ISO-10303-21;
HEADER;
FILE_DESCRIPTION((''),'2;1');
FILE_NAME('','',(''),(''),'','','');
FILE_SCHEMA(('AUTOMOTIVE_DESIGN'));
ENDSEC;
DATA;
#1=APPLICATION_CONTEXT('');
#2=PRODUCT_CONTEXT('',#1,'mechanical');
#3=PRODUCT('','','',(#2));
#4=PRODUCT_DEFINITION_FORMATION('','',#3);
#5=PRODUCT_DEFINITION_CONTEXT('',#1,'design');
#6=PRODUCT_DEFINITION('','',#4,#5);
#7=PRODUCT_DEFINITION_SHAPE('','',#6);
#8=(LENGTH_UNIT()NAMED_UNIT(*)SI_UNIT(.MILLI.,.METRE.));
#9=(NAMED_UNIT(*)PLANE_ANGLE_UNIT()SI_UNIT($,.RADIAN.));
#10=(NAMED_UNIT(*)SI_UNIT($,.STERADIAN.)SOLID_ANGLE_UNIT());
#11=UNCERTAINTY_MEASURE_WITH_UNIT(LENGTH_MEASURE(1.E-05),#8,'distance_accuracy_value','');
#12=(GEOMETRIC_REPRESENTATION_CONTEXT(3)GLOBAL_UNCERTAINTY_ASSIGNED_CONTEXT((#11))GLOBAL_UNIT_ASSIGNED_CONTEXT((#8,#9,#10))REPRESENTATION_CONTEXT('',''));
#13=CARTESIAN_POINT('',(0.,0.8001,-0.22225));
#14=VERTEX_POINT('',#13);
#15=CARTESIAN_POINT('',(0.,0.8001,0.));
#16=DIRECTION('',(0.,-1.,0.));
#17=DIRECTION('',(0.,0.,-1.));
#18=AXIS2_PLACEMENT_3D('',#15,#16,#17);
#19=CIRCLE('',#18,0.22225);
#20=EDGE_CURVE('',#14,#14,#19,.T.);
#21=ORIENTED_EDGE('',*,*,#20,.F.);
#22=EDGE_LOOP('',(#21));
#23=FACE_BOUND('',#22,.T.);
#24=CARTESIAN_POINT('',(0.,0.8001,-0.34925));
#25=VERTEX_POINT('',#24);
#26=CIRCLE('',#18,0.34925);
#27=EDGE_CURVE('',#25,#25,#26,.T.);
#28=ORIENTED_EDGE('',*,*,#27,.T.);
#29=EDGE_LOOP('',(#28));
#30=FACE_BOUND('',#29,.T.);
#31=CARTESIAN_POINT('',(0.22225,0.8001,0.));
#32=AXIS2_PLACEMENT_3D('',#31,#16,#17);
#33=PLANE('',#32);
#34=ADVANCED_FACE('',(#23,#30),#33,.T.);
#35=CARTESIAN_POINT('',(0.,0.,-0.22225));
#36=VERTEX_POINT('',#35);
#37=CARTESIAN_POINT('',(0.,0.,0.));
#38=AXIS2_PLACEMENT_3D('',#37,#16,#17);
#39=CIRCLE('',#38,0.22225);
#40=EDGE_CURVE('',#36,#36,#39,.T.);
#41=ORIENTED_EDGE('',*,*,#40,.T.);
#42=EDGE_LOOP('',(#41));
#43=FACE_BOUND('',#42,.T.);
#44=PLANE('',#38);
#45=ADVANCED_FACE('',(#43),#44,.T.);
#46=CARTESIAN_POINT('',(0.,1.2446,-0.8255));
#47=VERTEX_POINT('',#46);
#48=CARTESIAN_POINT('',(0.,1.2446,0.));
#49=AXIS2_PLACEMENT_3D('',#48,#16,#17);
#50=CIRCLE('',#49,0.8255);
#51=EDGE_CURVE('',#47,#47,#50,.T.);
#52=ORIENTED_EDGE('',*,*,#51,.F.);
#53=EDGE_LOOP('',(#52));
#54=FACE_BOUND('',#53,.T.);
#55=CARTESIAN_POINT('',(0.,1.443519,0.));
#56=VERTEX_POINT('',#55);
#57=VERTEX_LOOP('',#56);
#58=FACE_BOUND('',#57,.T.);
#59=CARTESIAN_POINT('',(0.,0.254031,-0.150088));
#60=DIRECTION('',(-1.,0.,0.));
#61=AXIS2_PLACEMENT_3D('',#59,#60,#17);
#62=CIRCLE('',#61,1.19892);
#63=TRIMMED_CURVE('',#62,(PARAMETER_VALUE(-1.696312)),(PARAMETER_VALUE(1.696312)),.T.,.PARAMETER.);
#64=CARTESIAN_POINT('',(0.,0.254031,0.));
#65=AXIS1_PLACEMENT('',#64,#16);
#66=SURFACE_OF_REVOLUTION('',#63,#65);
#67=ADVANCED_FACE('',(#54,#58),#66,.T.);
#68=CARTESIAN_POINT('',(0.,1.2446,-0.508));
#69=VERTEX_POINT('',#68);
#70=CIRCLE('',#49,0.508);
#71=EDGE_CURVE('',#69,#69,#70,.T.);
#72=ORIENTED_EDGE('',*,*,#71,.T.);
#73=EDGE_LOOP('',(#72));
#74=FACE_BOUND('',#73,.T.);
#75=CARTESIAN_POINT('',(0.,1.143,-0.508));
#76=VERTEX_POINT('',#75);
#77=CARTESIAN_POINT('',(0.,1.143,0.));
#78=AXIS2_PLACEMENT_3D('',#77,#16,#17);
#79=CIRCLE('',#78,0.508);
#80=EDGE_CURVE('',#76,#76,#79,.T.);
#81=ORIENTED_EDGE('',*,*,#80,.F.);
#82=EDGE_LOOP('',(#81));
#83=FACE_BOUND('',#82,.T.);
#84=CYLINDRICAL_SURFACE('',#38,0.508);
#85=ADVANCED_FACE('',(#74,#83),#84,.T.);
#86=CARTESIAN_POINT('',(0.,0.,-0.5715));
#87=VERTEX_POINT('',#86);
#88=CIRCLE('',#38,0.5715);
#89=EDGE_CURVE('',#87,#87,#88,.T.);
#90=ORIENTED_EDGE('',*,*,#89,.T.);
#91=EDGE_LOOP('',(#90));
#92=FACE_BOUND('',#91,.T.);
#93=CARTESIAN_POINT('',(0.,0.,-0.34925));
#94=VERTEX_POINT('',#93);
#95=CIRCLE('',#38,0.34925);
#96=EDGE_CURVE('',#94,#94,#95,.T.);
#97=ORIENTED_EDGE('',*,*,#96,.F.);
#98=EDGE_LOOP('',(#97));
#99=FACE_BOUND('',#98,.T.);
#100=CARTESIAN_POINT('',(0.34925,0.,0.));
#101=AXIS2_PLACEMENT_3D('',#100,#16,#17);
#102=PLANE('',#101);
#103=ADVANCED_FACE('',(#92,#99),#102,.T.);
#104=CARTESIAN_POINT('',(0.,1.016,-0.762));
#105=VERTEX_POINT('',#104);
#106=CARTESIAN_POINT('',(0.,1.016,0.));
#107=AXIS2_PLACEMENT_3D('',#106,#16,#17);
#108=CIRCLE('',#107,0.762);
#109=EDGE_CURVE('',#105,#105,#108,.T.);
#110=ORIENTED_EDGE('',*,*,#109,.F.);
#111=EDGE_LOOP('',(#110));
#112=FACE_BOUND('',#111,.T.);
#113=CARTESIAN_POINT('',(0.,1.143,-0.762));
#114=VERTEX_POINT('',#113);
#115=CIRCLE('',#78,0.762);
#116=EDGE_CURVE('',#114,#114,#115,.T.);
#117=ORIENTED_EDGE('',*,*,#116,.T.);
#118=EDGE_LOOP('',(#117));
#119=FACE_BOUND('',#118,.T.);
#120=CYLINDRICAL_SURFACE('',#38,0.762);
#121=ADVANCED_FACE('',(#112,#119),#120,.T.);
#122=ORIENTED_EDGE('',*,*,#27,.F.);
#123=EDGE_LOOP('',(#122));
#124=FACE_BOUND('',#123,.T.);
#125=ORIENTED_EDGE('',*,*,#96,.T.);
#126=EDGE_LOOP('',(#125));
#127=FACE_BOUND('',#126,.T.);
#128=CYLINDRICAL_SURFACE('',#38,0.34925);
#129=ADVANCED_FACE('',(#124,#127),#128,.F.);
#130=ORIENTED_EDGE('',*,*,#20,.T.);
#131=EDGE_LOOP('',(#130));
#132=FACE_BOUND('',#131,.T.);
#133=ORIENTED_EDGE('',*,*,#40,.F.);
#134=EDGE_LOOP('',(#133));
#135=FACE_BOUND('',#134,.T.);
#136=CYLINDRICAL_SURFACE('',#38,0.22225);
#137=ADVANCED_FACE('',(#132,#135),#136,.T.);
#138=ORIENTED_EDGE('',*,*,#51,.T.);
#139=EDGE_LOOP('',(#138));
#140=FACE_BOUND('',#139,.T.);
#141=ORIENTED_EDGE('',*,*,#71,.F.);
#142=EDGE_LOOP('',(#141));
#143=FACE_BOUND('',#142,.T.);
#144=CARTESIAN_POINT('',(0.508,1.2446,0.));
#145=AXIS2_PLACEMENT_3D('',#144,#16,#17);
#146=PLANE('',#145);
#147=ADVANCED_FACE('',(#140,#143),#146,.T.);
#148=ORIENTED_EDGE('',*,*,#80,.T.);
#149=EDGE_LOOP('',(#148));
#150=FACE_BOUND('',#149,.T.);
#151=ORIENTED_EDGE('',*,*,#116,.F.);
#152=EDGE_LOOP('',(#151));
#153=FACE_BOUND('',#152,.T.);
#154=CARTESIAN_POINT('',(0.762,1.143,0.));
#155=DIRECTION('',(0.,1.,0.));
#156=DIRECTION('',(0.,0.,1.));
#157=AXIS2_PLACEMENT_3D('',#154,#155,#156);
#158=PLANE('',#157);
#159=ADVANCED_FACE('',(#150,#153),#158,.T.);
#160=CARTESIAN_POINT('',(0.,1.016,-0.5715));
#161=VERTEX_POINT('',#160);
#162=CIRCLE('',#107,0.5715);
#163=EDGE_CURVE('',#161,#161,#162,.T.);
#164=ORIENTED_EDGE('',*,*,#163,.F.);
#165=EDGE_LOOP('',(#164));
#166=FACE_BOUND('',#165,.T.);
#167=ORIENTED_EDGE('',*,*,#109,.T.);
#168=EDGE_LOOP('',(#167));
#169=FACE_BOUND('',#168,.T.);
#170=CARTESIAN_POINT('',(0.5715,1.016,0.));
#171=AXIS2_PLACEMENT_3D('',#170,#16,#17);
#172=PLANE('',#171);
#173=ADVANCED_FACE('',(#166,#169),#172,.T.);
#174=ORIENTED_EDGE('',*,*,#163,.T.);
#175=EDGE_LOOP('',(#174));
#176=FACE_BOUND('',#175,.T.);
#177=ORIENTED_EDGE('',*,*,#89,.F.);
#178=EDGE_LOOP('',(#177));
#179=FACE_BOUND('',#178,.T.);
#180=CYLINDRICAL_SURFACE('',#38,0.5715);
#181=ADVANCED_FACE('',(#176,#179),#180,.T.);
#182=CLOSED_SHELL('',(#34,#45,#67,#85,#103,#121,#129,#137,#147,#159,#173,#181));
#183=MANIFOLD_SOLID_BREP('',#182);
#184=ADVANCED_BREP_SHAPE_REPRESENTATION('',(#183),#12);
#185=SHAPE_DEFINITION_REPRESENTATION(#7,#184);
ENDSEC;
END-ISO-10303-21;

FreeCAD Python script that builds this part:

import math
import FreeCAD as App
import Part
import Sketcher
from FreeCAD import Vector
Q = App.Units.Quantity

doc = App.newDocument("Part")
body = doc.addObject("PartDesign::Body", "Body")

# Sketch on XY plane
sketch1 = doc.addObject("Sketcher::SketchObject", "Sketch")
body.addObject(sketch1)
sketch1.AttachmentSupport = (doc.XY_Plane, [""])
sketch1.MapMode = "FlatFace"
sketch1.addGeometry([
    Part.LineSegment(Vector(0, 0, 0), Vector(0.22, 0, 0)),  # 0
    Part.LineSegment(Vector(0.22, 0, 0), Vector(0.22, 0.8, 0)),  # 1
    Part.LineSegment(Vector(0.22, 0.8, 0), Vector(0.35, 0.8, 0)),  # 2
    Part.LineSegment(Vector(0.35, 0.8, 0), Vector(0.35, 0, 0)),  # 3
    Part.LineSegment(Vector(0.35, 0, 0), Vector(0.57, 0, 0)),  # 4
    Part.LineSegment(Vector(0.57, 0, 0), Vector(0.57, 1.02, 0)),  # 5
    Part.LineSegment(Vector(0.57, 1.02, 0), Vector(0.76, 1.02, 0)),  # 6
    Part.LineSegment(Vector(0.76, 1.02, 0), Vector(0.76, 1.14, 0)),  # 7
    Part.LineSegment(Vector(0.76, 1.14, 0), Vector(0.51, 1.14, 0)),  # 8
    Part.LineSegment(Vector(0.51, 1.14, 0), Vector(0.51, 1.24, 0)),  # 9
    Part.LineSegment(Vector(0.51, 1.24, 0), Vector(0.83, 1.24, 0)),  # 10
    Part.ArcOfCircle(Part.Circle(Vector(0.15, 0.25, 0), Vector(0, 0, 1), 1.2), math.radians(56), math.radians(97)),  # 11
    Part.LineSegment(Vector(0, 1.44, 0), Vector(0, 0, 0)),  # 12
], False)
sketch1.addConstraint([
    Sketcher.Constraint("Coincident", 0, 2, 1, 1),
    Sketcher.Constraint("Coincident", 1, 2, 2, 1),
    Sketcher.Constraint("Coincident", 2, 2, 3, 1),
    Sketcher.Constraint("Coincident", 3, 2, 4, 1),
    Sketcher.Constraint("Coincident", 4, 2, 5, 1),
    Sketcher.Constraint("Coincident", 5, 2, 6, 1),
    Sketcher.Constraint("Coincident", 6, 2, 7, 1),
    Sketcher.Constraint("Coincident", 7, 2, 8, 1),
    Sketcher.Constraint("Coincident", 8, 2, 9, 1),
    Sketcher.Constraint("Coincident", 9, 2, 10, 1),
    Sketcher.Constraint("Coincident", 10, 2, 11, 1),
    Sketcher.Constraint("Coincident", 11, 2, 12, 1),
    Sketcher.Constraint("Coincident", 12, 2, 0, 1),
    Sketcher.Constraint("Horizontal", 0),
    Sketcher.Constraint("Vertical", 1),
    Sketcher.Constraint("Horizontal", 2),
    Sketcher.Constraint("Vertical", 3),
    Sketcher.Constraint("Horizontal", 4),
    Sketcher.Constraint("Vertical", 5),
    Sketcher.Constraint("Horizontal", 6),
    Sketcher.Constraint("Vertical", 7),
    Sketcher.Constraint("Horizontal", 8),
    Sketcher.Constraint("Vertical", 9),
    Sketcher.Constraint("Horizontal", 10),
    Sketcher.Constraint("Vertical", 12),
    Sketcher.Constraint("Coincident", 12, 2, -1, 1),
    Sketcher.Constraint("PointOnObject", 3, 2, -1),
    Sketcher.Constraint("Equal", 0, 4),
    Sketcher.Constraint("Equal", 2, 7),
    Sketcher.Constraint("DistanceX", 8, 2, 8, 1, Q("0.01 in")),
    Sketcher.Constraint("DistanceY", 5, 1, 5, 2, Q("0.04 in")),
    Sketcher.Constraint("DistanceX", 2, 1, 2, 2, Q("0.005 in")),
    Sketcher.Constraint("DistanceY", 9, 1, 9, 2, Q("0.004 in")),
    Sketcher.Constraint("DistanceX", -1, 1, 6, 2, Q("0.03 in")),
    Sketcher.Constraint("DistanceX", 5, 2, 10, 2, Q("0.01 in")),
    Sketcher.Constraint("DistanceX", 6, 1, 6, 2, Q("0.0075 in")),
    Sketcher.Constraint("DistanceY", 1, 1, 1, 2, Q("0.0315 in")),
    Sketcher.Constraint("Radius", 11, 1.19892),
    Sketcher.Constraint("DistanceY", 12, 2, 12, 1, 1.443519),
])
revolution = doc.addObject("PartDesign::Revolution", "Revolution")
body.addObject(revolution)
revolution.Profile = sketch1
revolution.ReferenceAxis = (sketch1, ["V_Axis"])
revolution.Angle = 360

doc.recompute()
